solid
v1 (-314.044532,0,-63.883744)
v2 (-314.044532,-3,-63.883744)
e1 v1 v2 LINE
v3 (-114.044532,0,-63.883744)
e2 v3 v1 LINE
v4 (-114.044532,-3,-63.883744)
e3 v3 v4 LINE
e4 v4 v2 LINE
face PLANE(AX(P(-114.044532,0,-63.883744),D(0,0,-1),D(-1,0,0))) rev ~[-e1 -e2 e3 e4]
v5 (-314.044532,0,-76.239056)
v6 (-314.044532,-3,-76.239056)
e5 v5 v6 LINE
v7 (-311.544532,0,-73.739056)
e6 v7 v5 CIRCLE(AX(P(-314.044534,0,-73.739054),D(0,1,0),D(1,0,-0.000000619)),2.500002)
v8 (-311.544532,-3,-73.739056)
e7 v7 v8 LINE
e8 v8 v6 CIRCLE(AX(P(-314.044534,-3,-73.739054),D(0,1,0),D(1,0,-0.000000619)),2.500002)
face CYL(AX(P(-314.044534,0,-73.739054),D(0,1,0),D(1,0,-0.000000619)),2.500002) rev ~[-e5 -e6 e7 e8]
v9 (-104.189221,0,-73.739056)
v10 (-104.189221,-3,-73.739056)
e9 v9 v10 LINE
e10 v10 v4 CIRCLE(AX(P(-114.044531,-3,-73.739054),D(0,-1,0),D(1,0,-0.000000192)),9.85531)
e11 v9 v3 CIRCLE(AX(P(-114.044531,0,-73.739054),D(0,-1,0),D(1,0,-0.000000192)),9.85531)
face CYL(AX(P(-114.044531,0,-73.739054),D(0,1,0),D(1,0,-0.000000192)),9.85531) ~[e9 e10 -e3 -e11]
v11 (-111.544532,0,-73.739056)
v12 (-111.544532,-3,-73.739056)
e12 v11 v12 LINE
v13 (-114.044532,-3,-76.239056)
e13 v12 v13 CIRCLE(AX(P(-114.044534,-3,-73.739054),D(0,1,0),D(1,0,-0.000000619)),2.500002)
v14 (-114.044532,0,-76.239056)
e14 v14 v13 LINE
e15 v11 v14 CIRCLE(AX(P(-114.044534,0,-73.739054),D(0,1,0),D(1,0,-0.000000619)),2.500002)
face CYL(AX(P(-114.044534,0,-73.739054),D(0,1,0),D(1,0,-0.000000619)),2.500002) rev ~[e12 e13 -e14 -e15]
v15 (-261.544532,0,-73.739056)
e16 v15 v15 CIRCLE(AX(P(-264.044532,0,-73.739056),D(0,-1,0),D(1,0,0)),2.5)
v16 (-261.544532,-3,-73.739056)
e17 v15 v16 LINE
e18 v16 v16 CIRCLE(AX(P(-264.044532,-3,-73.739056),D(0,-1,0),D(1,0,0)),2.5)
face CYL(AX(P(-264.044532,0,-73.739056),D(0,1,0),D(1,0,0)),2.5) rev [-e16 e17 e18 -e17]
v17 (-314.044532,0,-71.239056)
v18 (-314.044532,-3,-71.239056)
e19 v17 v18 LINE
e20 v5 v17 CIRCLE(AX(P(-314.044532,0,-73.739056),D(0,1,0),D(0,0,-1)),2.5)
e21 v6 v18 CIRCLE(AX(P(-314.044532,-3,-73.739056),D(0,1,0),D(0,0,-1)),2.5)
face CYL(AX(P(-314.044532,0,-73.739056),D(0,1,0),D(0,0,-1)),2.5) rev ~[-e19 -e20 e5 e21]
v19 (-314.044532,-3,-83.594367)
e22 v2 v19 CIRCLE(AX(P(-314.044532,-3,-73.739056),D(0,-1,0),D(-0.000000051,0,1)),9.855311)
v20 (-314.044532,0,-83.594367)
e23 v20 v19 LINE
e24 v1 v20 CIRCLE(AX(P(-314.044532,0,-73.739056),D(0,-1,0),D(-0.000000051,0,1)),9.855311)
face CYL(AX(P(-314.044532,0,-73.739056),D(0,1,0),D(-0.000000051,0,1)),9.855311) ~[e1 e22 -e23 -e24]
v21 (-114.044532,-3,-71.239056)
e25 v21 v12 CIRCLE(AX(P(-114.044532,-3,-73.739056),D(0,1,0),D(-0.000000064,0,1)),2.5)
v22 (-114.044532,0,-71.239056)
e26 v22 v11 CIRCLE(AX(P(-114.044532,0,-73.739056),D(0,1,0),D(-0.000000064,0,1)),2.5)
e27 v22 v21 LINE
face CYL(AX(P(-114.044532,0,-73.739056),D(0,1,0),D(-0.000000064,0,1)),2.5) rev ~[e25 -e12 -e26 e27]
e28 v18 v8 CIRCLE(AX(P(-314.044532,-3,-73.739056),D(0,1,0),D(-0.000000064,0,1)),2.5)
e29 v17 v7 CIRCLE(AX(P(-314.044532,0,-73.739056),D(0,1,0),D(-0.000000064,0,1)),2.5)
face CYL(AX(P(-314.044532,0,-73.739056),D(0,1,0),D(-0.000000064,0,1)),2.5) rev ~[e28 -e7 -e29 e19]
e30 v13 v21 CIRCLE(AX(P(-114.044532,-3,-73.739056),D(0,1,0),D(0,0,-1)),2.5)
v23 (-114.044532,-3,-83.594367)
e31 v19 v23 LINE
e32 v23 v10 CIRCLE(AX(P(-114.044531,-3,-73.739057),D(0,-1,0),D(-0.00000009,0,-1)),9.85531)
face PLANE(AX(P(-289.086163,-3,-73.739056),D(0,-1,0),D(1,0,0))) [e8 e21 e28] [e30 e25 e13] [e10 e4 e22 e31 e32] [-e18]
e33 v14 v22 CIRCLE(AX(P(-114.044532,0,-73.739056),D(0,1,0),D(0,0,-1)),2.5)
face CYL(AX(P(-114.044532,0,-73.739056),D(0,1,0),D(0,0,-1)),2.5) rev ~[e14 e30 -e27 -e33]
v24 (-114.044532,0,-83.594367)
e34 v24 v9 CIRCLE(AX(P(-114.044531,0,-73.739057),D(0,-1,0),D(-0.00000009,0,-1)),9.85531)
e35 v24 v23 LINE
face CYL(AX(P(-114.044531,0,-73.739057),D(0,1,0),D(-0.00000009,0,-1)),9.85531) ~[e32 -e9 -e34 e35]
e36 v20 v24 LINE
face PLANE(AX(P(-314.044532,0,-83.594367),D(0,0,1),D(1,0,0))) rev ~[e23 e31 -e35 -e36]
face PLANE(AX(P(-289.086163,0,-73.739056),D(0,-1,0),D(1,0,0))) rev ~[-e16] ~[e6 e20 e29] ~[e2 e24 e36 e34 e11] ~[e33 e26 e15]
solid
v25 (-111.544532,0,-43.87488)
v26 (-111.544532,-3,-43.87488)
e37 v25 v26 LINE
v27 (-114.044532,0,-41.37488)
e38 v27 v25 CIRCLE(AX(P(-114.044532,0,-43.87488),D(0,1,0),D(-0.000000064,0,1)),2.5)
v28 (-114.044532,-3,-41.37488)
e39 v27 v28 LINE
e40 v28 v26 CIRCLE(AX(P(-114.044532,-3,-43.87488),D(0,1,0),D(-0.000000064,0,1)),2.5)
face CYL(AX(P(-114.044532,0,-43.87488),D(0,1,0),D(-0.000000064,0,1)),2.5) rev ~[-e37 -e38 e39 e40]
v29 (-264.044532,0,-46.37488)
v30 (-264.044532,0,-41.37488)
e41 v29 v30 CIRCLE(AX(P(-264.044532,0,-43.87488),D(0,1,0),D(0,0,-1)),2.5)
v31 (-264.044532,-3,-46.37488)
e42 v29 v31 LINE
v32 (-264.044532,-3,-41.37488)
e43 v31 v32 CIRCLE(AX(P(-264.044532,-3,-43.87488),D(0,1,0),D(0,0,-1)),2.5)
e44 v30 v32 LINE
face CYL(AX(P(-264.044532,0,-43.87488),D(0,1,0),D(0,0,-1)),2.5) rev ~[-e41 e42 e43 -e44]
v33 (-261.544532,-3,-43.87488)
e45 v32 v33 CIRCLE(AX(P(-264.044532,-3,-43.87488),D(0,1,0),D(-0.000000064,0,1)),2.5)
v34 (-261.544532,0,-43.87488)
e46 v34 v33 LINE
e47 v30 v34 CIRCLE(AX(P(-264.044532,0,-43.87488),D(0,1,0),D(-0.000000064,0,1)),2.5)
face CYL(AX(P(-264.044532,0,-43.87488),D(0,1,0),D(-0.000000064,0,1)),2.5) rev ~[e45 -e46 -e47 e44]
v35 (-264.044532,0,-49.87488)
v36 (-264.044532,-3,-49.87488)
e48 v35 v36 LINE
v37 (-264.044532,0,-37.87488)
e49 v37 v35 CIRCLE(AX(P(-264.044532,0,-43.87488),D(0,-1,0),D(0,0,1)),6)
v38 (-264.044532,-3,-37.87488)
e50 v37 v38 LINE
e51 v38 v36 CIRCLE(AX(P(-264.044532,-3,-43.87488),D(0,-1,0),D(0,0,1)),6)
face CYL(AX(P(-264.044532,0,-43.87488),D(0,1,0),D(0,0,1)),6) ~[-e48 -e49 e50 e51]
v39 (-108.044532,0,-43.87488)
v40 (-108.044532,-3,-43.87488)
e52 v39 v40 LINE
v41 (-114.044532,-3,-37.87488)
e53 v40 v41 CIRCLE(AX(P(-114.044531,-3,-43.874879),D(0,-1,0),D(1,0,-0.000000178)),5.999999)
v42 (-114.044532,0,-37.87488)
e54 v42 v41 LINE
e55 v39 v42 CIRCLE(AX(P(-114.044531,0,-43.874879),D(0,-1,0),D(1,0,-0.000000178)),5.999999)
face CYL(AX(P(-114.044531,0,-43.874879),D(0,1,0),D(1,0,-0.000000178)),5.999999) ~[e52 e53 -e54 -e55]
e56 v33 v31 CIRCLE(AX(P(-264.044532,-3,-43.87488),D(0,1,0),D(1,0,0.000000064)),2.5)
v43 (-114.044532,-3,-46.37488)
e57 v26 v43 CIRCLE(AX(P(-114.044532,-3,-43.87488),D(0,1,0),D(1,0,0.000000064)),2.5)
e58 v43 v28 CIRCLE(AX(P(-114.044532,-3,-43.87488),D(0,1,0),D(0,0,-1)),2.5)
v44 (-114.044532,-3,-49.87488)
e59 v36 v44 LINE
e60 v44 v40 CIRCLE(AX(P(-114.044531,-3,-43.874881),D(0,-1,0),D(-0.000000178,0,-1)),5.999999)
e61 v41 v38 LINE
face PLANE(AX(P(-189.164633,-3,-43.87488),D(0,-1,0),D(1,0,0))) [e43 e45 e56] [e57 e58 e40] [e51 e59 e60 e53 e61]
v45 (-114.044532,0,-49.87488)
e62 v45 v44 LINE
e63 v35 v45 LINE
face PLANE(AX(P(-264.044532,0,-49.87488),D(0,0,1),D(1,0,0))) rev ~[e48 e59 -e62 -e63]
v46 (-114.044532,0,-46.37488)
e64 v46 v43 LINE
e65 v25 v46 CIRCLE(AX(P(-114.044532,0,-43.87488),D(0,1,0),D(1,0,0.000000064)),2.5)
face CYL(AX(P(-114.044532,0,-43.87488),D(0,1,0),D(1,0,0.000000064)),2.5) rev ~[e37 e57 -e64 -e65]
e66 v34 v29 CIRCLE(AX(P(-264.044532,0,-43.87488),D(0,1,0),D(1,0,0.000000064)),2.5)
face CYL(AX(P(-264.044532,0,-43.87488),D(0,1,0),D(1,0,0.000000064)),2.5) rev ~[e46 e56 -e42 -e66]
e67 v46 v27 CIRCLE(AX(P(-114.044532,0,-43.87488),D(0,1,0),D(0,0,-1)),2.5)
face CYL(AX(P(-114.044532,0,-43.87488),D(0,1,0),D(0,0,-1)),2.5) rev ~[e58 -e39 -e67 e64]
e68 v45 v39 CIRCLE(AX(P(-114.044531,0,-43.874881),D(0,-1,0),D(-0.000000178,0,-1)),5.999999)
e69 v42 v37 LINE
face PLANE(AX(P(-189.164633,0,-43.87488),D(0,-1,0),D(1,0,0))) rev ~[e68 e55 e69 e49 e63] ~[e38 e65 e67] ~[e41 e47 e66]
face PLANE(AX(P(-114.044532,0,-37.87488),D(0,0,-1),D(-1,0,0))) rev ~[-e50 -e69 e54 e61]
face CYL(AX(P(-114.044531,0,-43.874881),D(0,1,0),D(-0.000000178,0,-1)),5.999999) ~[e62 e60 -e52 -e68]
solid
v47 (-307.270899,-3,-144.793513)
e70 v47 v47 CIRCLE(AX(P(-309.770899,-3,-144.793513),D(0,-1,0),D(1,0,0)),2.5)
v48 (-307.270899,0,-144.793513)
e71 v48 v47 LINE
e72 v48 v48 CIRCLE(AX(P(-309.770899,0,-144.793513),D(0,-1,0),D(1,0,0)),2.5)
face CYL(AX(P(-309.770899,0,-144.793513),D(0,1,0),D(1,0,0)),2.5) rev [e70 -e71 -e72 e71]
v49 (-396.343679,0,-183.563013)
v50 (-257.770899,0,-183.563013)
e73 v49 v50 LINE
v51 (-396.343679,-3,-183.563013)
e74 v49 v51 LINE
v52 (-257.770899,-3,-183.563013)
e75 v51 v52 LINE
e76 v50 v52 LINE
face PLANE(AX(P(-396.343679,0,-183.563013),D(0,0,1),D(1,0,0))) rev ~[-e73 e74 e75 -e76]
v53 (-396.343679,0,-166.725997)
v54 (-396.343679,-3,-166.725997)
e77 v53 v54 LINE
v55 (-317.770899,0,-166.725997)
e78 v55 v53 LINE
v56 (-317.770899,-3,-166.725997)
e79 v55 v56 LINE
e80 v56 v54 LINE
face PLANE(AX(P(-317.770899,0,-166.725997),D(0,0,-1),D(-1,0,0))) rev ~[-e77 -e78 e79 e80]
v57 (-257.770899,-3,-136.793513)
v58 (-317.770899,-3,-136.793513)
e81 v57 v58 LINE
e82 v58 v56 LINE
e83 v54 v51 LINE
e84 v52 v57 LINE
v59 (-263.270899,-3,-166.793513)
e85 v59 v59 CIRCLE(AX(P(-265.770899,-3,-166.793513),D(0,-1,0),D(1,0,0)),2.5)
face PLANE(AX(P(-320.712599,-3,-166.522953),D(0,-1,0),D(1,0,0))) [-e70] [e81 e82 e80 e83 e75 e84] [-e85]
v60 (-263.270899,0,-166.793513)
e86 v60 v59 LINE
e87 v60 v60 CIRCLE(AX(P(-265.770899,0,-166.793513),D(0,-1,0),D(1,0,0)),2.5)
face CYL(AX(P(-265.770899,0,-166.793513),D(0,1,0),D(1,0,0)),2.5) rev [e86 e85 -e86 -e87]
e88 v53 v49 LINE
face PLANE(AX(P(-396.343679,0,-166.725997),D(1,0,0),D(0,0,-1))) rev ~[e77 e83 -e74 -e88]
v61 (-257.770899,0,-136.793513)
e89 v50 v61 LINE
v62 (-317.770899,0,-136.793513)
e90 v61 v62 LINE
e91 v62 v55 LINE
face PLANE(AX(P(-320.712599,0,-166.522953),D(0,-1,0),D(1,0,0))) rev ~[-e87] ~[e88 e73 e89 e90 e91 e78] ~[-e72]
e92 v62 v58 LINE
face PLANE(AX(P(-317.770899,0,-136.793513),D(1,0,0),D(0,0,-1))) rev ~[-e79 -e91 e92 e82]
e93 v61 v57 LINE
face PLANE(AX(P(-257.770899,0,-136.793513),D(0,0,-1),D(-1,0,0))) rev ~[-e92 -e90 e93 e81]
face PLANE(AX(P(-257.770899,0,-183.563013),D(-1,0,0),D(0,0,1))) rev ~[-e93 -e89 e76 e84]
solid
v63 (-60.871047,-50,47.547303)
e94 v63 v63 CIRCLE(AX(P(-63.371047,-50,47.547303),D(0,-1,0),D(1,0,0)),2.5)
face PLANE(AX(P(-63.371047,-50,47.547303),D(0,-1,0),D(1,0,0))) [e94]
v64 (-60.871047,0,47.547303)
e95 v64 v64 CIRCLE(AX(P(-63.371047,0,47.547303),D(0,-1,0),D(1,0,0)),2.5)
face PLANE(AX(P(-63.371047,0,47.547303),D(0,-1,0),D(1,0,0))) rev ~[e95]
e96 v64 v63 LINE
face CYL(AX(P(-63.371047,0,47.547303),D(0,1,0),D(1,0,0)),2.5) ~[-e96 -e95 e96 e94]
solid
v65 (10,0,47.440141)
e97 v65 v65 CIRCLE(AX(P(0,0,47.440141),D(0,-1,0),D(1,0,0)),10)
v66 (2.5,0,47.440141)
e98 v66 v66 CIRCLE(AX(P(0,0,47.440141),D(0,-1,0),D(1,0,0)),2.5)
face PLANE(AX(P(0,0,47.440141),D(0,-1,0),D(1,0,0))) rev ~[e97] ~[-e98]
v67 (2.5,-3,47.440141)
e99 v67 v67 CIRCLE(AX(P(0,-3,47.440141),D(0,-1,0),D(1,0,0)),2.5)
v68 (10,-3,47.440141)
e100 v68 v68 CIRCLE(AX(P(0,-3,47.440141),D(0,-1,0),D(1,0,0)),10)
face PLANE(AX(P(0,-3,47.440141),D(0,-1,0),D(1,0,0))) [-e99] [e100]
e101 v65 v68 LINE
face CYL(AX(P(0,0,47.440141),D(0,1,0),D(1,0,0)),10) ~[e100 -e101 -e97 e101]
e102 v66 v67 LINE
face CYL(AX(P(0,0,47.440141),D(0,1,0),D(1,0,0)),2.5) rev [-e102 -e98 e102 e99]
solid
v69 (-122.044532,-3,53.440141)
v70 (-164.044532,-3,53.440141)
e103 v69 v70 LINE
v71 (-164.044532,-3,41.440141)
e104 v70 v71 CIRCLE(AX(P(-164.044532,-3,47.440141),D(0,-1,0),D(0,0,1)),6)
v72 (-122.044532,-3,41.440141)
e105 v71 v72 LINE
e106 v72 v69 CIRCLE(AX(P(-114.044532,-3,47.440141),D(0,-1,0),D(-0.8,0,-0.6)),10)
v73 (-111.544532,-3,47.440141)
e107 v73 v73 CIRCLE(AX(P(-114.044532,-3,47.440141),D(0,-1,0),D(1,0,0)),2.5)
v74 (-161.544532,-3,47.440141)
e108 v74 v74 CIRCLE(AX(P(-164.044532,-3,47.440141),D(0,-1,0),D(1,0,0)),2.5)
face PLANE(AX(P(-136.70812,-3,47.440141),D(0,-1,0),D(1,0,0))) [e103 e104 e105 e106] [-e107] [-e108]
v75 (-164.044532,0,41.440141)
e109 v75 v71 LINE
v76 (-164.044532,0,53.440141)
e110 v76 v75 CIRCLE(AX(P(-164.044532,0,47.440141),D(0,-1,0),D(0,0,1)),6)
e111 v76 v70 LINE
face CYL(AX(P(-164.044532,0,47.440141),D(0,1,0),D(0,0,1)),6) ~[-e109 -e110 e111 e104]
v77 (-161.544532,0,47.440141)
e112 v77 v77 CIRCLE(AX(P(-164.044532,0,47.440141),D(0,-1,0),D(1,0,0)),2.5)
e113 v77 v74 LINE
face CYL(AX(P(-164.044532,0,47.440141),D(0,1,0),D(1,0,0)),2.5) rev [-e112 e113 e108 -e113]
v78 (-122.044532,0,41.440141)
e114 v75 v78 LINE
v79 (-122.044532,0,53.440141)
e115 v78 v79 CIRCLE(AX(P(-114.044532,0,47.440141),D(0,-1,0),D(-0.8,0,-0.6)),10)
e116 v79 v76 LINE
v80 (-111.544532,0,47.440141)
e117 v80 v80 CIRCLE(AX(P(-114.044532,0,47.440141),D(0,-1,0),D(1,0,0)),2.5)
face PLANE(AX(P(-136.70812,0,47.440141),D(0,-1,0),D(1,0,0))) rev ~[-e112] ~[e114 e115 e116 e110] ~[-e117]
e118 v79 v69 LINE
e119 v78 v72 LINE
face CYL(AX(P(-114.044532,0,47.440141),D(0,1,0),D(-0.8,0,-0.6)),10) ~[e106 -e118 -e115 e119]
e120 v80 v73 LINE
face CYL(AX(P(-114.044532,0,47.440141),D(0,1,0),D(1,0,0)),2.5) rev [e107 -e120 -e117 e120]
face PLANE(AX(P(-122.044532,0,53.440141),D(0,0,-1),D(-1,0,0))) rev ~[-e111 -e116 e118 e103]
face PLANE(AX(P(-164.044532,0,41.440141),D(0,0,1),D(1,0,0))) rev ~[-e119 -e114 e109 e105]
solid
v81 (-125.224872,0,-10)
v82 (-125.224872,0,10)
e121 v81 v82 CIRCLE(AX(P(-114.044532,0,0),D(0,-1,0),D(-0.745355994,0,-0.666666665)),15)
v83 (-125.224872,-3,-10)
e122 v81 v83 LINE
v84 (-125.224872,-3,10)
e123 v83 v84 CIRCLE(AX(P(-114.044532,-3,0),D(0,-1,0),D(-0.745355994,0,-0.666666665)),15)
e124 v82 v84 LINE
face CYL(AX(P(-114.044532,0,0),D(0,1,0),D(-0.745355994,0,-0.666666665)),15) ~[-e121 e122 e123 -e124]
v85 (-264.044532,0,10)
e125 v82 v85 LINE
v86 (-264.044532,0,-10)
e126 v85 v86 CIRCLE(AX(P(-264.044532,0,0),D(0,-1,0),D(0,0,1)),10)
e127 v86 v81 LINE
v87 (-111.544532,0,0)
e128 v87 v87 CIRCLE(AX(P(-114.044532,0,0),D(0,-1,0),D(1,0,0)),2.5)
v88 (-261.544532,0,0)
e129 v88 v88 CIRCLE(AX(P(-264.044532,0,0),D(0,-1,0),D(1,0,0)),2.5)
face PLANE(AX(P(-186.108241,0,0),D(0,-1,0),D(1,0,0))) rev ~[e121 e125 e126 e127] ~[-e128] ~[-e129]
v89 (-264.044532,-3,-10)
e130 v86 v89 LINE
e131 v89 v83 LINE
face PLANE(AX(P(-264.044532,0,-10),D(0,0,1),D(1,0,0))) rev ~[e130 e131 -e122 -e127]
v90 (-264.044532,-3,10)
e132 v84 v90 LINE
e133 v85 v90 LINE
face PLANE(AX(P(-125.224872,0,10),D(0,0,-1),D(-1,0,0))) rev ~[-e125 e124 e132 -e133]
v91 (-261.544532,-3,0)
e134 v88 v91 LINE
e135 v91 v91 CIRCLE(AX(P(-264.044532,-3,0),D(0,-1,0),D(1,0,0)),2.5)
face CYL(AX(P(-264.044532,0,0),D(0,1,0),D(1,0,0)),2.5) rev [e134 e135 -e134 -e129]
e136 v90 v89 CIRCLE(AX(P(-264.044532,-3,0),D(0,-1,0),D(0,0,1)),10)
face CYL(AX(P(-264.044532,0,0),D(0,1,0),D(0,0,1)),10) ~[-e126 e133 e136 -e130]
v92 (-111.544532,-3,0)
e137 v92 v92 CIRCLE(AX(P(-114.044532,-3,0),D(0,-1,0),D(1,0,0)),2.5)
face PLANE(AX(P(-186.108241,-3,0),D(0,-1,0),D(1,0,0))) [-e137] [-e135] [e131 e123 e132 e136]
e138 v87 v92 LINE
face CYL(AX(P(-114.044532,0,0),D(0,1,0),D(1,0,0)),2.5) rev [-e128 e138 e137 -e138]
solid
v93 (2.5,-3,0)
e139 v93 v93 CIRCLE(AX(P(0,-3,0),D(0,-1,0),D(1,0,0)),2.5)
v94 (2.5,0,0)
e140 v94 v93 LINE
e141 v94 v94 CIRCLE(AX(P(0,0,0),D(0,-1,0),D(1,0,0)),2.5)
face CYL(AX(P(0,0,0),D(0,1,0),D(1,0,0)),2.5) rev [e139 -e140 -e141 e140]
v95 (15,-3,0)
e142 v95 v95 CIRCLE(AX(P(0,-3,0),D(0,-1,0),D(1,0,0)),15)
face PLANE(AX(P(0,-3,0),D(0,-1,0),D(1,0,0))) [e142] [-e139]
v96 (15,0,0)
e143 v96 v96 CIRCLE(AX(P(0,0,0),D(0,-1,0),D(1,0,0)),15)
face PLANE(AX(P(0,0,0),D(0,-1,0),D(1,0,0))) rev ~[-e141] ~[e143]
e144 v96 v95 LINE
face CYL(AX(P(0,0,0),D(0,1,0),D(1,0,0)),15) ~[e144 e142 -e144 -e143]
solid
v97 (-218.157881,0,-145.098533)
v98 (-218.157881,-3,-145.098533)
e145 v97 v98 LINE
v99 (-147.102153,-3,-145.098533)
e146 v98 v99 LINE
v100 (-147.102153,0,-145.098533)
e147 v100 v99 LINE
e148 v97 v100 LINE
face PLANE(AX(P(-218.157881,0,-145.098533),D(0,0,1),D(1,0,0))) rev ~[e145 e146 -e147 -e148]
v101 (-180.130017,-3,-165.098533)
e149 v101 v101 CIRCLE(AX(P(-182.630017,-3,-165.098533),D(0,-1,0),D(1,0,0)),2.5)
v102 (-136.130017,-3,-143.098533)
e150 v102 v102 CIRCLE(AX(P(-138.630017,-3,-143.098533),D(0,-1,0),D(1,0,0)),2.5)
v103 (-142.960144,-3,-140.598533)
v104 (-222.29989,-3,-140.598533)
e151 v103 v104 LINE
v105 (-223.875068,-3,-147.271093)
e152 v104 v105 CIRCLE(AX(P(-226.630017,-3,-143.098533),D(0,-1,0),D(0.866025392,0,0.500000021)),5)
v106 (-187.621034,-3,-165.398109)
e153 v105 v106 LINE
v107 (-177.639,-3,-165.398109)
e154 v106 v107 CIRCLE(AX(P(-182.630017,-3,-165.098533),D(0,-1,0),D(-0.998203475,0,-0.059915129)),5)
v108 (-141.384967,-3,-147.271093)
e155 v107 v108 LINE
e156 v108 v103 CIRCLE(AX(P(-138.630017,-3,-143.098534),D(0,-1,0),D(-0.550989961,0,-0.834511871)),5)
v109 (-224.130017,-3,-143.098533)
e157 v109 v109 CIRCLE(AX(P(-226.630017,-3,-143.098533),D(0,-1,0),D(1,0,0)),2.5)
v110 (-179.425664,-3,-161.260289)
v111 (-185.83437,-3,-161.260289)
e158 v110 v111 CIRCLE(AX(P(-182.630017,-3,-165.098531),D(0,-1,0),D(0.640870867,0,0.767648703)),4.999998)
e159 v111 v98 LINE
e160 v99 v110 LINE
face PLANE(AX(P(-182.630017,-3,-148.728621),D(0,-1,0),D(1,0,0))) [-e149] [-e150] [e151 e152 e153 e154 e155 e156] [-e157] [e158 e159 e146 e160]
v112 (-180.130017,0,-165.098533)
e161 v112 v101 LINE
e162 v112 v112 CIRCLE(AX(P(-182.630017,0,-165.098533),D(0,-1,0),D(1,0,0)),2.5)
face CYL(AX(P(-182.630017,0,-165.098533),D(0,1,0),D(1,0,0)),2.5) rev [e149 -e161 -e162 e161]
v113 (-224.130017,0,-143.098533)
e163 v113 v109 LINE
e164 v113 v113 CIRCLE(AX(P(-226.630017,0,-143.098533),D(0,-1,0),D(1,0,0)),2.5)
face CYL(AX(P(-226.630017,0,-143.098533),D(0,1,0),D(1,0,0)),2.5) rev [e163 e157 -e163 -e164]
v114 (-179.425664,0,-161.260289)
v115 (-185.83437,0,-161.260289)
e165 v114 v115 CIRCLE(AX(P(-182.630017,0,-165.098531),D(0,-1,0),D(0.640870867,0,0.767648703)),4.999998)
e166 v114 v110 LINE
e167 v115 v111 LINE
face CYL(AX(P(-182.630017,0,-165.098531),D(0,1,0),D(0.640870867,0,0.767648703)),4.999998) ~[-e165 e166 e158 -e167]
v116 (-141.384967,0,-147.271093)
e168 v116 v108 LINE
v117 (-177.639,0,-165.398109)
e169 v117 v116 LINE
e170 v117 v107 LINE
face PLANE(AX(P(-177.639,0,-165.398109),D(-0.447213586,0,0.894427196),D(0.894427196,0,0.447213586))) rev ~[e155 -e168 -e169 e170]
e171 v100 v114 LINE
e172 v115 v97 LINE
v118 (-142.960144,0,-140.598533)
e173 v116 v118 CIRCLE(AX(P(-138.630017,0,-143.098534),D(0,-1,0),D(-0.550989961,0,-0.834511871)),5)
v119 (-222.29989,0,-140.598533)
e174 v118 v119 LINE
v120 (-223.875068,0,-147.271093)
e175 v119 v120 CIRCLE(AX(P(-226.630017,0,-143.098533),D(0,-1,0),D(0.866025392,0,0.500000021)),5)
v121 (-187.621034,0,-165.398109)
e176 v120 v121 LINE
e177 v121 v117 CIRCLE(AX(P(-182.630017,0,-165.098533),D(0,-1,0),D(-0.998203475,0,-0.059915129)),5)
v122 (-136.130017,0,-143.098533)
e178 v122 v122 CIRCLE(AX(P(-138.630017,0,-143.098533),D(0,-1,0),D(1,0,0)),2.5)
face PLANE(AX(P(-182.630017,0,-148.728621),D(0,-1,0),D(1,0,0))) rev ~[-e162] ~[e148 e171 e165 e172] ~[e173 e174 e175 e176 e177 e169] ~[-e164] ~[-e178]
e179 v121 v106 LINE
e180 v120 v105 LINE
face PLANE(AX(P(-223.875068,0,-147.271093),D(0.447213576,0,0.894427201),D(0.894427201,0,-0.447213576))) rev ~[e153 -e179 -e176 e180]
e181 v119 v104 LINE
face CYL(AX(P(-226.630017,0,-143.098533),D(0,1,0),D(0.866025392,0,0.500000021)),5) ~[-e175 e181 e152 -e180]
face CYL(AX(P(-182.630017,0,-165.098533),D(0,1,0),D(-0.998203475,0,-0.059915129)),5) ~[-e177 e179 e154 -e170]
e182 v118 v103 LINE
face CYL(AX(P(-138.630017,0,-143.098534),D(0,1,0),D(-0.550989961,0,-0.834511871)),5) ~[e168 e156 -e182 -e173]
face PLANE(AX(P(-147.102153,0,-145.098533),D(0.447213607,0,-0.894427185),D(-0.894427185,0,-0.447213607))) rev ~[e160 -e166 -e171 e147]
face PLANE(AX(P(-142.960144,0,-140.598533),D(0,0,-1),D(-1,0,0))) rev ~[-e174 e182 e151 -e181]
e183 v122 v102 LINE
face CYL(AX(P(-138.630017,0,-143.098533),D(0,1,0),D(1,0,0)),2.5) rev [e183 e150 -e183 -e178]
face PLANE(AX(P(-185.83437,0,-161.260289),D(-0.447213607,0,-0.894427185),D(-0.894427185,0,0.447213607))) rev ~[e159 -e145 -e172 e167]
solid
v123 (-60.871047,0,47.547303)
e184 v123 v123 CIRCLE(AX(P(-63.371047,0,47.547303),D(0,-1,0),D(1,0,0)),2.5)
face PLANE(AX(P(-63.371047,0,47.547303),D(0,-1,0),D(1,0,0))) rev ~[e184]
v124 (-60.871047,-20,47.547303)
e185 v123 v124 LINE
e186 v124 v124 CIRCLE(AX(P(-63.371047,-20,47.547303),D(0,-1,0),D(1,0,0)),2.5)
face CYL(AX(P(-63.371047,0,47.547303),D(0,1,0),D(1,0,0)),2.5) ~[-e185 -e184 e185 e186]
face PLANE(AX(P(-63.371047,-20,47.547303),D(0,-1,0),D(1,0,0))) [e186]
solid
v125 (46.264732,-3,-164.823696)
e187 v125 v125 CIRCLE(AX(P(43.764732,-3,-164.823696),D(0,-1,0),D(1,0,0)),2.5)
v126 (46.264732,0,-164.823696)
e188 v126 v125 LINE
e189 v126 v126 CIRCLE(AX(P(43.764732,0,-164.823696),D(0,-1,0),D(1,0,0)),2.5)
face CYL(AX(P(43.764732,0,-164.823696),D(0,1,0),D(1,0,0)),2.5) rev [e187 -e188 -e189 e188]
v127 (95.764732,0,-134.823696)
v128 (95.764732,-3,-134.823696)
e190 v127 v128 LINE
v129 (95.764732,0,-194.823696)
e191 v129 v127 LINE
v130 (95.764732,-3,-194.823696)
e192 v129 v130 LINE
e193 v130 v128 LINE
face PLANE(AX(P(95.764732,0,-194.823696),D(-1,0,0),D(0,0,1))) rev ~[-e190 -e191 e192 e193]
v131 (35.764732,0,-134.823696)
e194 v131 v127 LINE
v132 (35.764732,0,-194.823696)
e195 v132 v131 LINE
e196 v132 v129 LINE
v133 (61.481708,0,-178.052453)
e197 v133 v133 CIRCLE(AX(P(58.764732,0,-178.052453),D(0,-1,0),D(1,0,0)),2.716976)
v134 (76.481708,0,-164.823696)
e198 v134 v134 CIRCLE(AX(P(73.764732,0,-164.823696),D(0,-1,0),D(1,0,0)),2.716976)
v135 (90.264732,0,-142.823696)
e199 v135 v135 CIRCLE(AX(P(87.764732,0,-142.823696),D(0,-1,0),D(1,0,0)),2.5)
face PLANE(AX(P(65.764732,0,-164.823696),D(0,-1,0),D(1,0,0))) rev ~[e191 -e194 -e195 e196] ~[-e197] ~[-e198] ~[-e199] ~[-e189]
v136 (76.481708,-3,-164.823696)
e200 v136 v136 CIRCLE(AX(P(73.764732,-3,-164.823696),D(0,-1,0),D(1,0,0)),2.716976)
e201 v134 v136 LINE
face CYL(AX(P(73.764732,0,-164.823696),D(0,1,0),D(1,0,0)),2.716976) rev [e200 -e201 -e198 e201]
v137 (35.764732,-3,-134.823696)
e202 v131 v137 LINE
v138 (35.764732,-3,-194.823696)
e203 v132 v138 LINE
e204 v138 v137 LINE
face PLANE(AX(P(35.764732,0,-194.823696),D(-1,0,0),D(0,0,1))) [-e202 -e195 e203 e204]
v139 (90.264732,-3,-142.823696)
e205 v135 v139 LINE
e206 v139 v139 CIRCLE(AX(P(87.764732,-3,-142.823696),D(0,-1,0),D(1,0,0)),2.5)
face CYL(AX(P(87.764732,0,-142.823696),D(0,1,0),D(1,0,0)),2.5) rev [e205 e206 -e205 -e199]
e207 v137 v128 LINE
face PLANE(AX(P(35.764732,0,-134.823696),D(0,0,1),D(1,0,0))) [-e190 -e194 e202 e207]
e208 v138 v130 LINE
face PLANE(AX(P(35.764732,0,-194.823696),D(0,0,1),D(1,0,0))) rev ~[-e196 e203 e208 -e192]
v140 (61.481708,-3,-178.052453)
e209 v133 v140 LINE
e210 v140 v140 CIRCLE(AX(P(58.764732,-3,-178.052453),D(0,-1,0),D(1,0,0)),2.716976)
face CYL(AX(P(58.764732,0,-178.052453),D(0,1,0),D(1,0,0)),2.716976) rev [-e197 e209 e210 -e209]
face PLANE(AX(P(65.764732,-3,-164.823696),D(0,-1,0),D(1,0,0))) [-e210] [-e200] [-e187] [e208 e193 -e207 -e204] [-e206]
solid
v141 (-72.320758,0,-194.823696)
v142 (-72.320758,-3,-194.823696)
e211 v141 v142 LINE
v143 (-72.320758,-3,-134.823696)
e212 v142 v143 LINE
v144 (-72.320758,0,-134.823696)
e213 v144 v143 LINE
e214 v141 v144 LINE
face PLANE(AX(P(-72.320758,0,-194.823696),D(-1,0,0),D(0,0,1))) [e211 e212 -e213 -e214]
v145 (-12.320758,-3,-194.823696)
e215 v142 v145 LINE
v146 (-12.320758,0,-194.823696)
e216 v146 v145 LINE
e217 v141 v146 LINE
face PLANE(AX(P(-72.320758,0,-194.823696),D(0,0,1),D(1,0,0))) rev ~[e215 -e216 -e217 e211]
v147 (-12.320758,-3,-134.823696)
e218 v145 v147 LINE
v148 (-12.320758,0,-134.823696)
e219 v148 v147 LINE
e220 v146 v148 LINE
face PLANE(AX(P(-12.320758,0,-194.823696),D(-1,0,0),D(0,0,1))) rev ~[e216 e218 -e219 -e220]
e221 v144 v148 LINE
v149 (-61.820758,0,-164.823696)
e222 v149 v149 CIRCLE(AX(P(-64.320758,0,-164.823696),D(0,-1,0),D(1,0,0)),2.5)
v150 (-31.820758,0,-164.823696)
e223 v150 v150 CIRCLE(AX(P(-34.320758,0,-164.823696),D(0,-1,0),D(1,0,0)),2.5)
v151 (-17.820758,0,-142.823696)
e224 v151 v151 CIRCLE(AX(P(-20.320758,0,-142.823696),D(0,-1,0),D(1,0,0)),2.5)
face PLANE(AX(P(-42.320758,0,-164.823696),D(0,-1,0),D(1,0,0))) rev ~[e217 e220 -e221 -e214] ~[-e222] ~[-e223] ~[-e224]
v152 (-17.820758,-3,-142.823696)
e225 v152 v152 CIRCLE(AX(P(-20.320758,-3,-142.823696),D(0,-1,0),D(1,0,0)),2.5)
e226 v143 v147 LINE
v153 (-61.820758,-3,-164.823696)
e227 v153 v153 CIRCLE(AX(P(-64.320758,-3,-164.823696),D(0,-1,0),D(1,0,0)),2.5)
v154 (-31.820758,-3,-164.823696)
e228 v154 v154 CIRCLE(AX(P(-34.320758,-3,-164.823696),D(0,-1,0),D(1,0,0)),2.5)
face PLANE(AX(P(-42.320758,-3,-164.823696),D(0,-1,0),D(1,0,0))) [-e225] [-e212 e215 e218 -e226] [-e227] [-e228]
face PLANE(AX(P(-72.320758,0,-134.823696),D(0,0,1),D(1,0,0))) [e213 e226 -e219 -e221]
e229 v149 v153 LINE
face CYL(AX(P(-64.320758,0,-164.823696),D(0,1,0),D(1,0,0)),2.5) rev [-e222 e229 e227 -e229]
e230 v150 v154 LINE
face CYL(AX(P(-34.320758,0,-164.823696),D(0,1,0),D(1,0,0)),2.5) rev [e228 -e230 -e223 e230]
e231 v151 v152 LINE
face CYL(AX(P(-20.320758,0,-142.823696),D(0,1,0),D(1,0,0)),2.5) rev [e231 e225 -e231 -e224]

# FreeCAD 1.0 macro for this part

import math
import FreeCAD as App
import Part
import Sketcher
from FreeCAD import Vector

doc = App.newDocument("Part")
body = doc.addObject("PartDesign::Body", "Body")
body.AllowCompound = True

sketch1 = doc.addObject("Sketcher::SketchObject", "Sketch")
body.addObject(sketch1)
sketch1.AttachmentSupport = (doc.XZ_Plane, [""])
sketch1.MapMode = "FlatFace"
sketch1.addGeometry([
    Part.Circle(Vector(0, 0, 0), Vector(0, 0, 1), 15),
    Part.Circle(Vector(0, 0, 0), Vector(0, 0, 1), 2.5),
    Part.Circle(Vector(0, 47.4, 0), Vector(0, 0, 1), 10),
    Part.Circle(Vector(0, 47.4, 0), Vector(0, 0, 1), 2.5),
    Part.LineSegment(Vector(-164, 41.4, 0), Vector(-122, 41.4, 0)),
    Part.ArcOfCircle(Part.Circle(Vector(-114, 47.4, 0), Vector(0, 0, 1), 10), math.radians(-143), math.radians(143)),
    Part.LineSegment(Vector(-122, 53.4, 0), Vector(-164, 53.4, 0)),
    Part.ArcOfCircle(Part.Circle(Vector(-164, 47.4, 0), Vector(0, 0, 1), 6), math.radians(90), math.radians(270)),
    Part.Circle(Vector(-164, 47.4, 0), Vector(0, 0, 1), 2.5),
    Part.Circle(Vector(-114, 47.4, 0), Vector(0, 0, 1), 2.5),
    Part.LineSegment(Vector(-264, -10, 0), Vector(-125.2, -10, 0)),
    Part.ArcOfCircle(Part.Circle(Vector(-114, 0, 0), Vector(0, 0, 1), 15), math.radians(-138), math.radians(138)),
    Part.LineSegment(Vector(-125.2, 10, 0), Vector(-264, 10, 0)),
    Part.ArcOfCircle(Part.Circle(Vector(-264, 0, 0), Vector(0, 0, 1), 10), math.radians(90), math.radians(270)),
    Part.Circle(Vector(-264, 0, 0), Vector(0, 0, 1), 2.5),
    Part.Circle(Vector(-114, 0, 0), Vector(0, 0, 1), 2.5),
    Part.LineSegment(Vector(-114, -37.9, 0), Vector(-264, -37.9, 0)),
    Part.ArcOfCircle(Part.Circle(Vector(-264, -43.9, 0), Vector(0, 0, 1), 6), math.radians(90), math.radians(270)),
    Part.LineSegment(Vector(-264, -49.9, 0), Vector(-114, -49.9, 0)),
    Part.ArcOfCircle(Part.Circle(Vector(-114, -43.9, 0), Vector(0, 0, 1), 6), math.radians(-90), math.radians(0)),
    Part.ArcOfCircle(Part.Circle(Vector(-114, -43.9, 0), Vector(0, 0, 1), 6), math.radians(0), math.radians(90)),
    Part.ArcOfCircle(Part.Circle(Vector(-264, -43.9, 0), Vector(0, 0, 1), 2.5), math.radians(0), math.radians(90)),
    Part.ArcOfCircle(Part.Circle(Vector(-264, -43.9, 0), Vector(0, 0, 1), 2.5), math.radians(-90), math.radians(0)),
    Part.ArcOfCircle(Part.Circle(Vector(-264, -43.9, 0), Vector(0, 0, 1), 2.5), math.radians(90), math.radians(270)),
    Part.ArcOfCircle(Part.Circle(Vector(-114, -43.9, 0), Vector(0, 0, 1), 2.5), math.radians(90), math.radians(270)),
    Part.ArcOfCircle(Part.Circle(Vector(-114, -43.9, 0), Vector(0, 0, 1), 2.5), math.radians(0), math.radians(90)),
    Part.ArcOfCircle(Part.Circle(Vector(-114, -43.9, 0), Vector(0, 0, 1), 2.5), math.radians(-90), math.radians(0)),
    Part.ArcOfCircle(Part.Circle(Vector(-314, -73.7, 0), Vector(0, 0, 1), 9.9), math.radians(90), math.radians(270)),
    Part.LineSegment(Vector(-314, -83.6, 0), Vector(-114, -83.6, 0)),
    Part.ArcOfCircle(Part.Circle(Vector(-114, -73.7, 0), Vector(0, 0, 1), 9.9), math.radians(-90), math.radians(0)),
    Part.ArcOfCircle(Part.Circle(Vector(-114, -73.7, 0), Vector(0, 0, 1), 9.9), math.radians(0), math.radians(90)),
    Part.LineSegment(Vector(-114, -63.9, 0), Vector(-314, -63.9, 0)),
    Part.ArcOfCircle(Part.Circle(Vector(-114, -73.7, 0), Vector(0, 0, 1), 2.5), math.radians(-90), math.radians(0)),
    Part.ArcOfCircle(Part.Circle(Vector(-114, -73.7, 0), Vector(0, 0, 1), 2.5), math.radians(90), math.radians(270)),
    Part.ArcOfCircle(Part.Circle(Vector(-114, -73.7, 0), Vector(0, 0, 1), 2.5), math.radians(0), math.radians(90)),
    Part.ArcOfCircle(Part.Circle(Vector(-314, -73.7, 0), Vector(0, 0, 1), 2.5), math.radians(0), math.radians(90)),
    Part.ArcOfCircle(Part.Circle(Vector(-314, -73.7, 0), Vector(0, 0, 1), 2.5), math.radians(-90), math.radians(0)),
    Part.ArcOfCircle(Part.Circle(Vector(-314, -73.7, 0), Vector(0, 0, 1), 2.5), math.radians(90), math.radians(270)),
    Part.Circle(Vector(-264, -73.7, 0), Vector(0, 0, 1), 2.5),
    Part.LineSegment(Vector(-396.3, -183.6, 0), Vector(-257.8, -183.6, 0)),
    Part.LineSegment(Vector(-257.8, -183.6, 0), Vector(-257.8, -136.8, 0)),
    Part.LineSegment(Vector(-257.8, -136.8, 0), Vector(-317.8, -136.8, 0)),
    Part.LineSegment(Vector(-317.8, -136.8, 0), Vector(-317.8, -166.7, 0)),
    Part.LineSegment(Vector(-317.8, -166.7, 0), Vector(-396.3, -166.7, 0)),
    Part.LineSegment(Vector(-396.3, -166.7, 0), Vector(-396.3, -183.6, 0)),
    Part.Circle(Vector(-265.8, -166.8, 0), Vector(0, 0, 1), 2.5),
    Part.Circle(Vector(-309.8, -144.8, 0), Vector(0, 0, 1), 2.5),
    Part.LineSegment(Vector(-72.3, -134.8, 0), Vector(-72.3, -194.8, 0)),
    Part.LineSegment(Vector(-72.3, -194.8, 0), Vector(-12.3, -194.8, 0)),
    Part.LineSegment(Vector(-12.3, -194.8, 0), Vector(-12.3, -134.8, 0)),
    Part.LineSegment(Vector(-12.3, -134.8, 0), Vector(-72.3, -134.8, 0)),
    Part.Circle(Vector(-64.3, -164.8, 0), Vector(0, 0, 1), 2.5),
    Part.Circle(Vector(-34.3, -164.8, 0), Vector(0, 0, 1), 2.5),
    Part.Circle(Vector(-20.3, -142.8, 0), Vector(0, 0, 1), 2.5),
    Part.ArcOfCircle(Part.Circle(Vector(-226.6, -143.1, 0), Vector(0, 0, 1), 5), math.radians(30), math.radians(303)),
    Part.LineSegment(Vector(-223.9, -147.3, 0), Vector(-187.6, -165.4, 0)),
    Part.ArcOfCircle(Part.Circle(Vector(-182.6, -165.1, 0), Vector(0, 0, 1), 5), math.radians(-177), math.radians(-3)),
    Part.LineSegment(Vector(-177.6, -165.4, 0), Vector(-141.4, -147.3, 0)),
    Part.ArcOfCircle(Part.Circle(Vector(-138.6, -143.1, 0), Vector(0, 0, 1), 5), math.radians(-123), math.radians(150)),
    Part.LineSegment(Vector(-143, -140.6, 0), Vector(-222.3, -140.6, 0)),
    Part.Circle(Vector(-182.6, -165.1, 0), Vector(0, 0, 1), 2.5),
    Part.Circle(Vector(-226.6, -143.1, 0), Vector(0, 0, 1), 2.5),
    Part.ArcOfCircle(Part.Circle(Vector(-182.6, -165.1, 0), Vector(0, 0, 1), 5), math.radians(50), math.radians(130)),
    Part.LineSegment(Vector(-185.8, -161.3, 0), Vector(-218.2, -145.1, 0)),
    Part.LineSegment(Vector(-218.2, -145.1, 0), Vector(-147.1, -145.1, 0)),
    Part.LineSegment(Vector(-147.1, -145.1, 0), Vector(-179.4, -161.3, 0)),
    Part.Circle(Vector(-138.6, -143.1, 0), Vector(0, 0, 1), 2.5),
    Part.LineSegment(Vector(35.8, -134.8, 0), Vector(35.8, -194.8, 0)),
    Part.LineSegment(Vector(35.8, -194.8, 0), Vector(95.8, -194.8, 0)),
    Part.LineSegment(Vector(95.8, -194.8, 0), Vector(95.8, -134.8, 0)),
    Part.LineSegment(Vector(95.8, -134.8, 0), Vector(35.8, -134.8, 0)),
    Part.Circle(Vector(58.8, -178.1, 0), Vector(0, 0, 1), 2.7),
    Part.Circle(Vector(43.8, -164.8, 0), Vector(0, 0, 1), 2.5),
    Part.Circle(Vector(73.8, -164.8, 0), Vector(0, 0, 1), 2.7),
    Part.Circle(Vector(87.8, -142.8, 0), Vector(0, 0, 1), 2.5),
], False)
sketch1.addConstraint([
    Sketcher.Constraint("Coincident", 4, 2, 5, 1),
    Sketcher.Constraint("Coincident", 5, 2, 6, 1),
    Sketcher.Constraint("Tangent", 6, 2, 7, 1),
    Sketcher.Constraint("Tangent", 7, 2, 4, 1),
    Sketcher.Constraint("Coincident", 10, 2, 11, 1),
    Sketcher.Constraint("Coincident", 11, 2, 12, 1),
    Sketcher.Constraint("Tangent", 12, 2, 13, 1),
    Sketcher.Constraint("Tangent", 13, 2, 10, 1),
    Sketcher.Constraint("Tangent", 16, 2, 17, 1),
    Sketcher.Constraint("Tangent", 17, 2, 18, 1),
    Sketcher.Constraint("Tangent", 18, 2, 19, 1),
    Sketcher.Constraint("Tangent", 19, 2, 20, 1),
    Sketcher.Constraint("Tangent", 20, 2, 16, 1),
    Sketcher.Constraint("Tangent", 21, 1, 22, 2),
    Sketcher.Constraint("Tangent", 22, 1, 23, 2),
    Sketcher.Constraint("Tangent", 23, 1, 21, 2),
    Sketcher.Constraint("Tangent", 24, 1, 25, 2),
    Sketcher.Constraint("Tangent", 25, 1, 26, 2),
    Sketcher.Constraint("Tangent", 26, 1, 24, 2),
    Sketcher.Constraint("Tangent", 27, 2, 28, 1),
    Sketcher.Constraint("Tangent", 28, 2, 29, 1),
    Sketcher.Constraint("Tangent", 29, 2, 30, 1),
    Sketcher.Constraint("Tangent", 30, 2, 31, 1),
    Sketcher.Constraint("Tangent", 31, 2, 27, 1),
    Sketcher.Constraint("Tangent", 32, 1, 33, 2),
    Sketcher.Constraint("Tangent", 33, 1, 34, 2),
    Sketcher.Constraint("Tangent", 34, 1, 32, 2),
    Sketcher.Constraint("Tangent", 35, 1, 36, 2),
    Sketcher.Constraint("Tangent", 36, 1, 37, 2),
    Sketcher.Constraint("Tangent", 37, 1, 35, 2),
    Sketcher.Constraint("Coincident", 39, 2, 40, 1),
    Sketcher.Constraint("Coincident", 40, 2, 41, 1),
    Sketcher.Constraint("Coincident", 41, 2, 42, 1),
    Sketcher.Constraint("Coincident", 42, 2, 43, 1),
    Sketcher.Constraint("Coincident", 43, 2, 44, 1),
    Sketcher.Constraint("Coincident", 44, 2, 39, 1),
    Sketcher.Constraint("Coincident", 47, 2, 48, 1),
    Sketcher.Constraint("Coincident", 48, 2, 49, 1),
    Sketcher.Constraint("Coincident", 49, 2, 50, 1),
    Sketcher.Constraint("Coincident", 50, 2, 47, 1),
    Sketcher.Constraint("Coincident", 54, 2, 55, 1),
    Sketcher.Constraint("Coincident", 55, 2, 56, 1),
    Sketcher.Constraint("Coincident", 56, 2, 57, 1),
    Sketcher.Constraint("Coincident", 57, 2, 58, 1),
    Sketcher.Constraint("Coincident", 58, 2, 59, 1),
    Sketcher.Constraint("Coincident", 59, 2, 54, 1),
    Sketcher.Constraint("Coincident", 62, 2, 63, 1),
    Sketcher.Constraint("Coincident", 63, 2, 64, 1),
    Sketcher.Constraint("Coincident", 64, 2, 65, 1),
    Sketcher.Constraint("Coincident", 65, 2, 62, 1),
    Sketcher.Constraint("Coincident", 67, 2, 68, 1),
    Sketcher.Constraint("Coincident", 68, 2, 69, 1),
    Sketcher.Constraint("Coincident", 69, 2, 70, 1),
    Sketcher.Constraint("Coincident", 70, 2, 67, 1),
    Sketcher.Constraint("Horizontal", 4),
    Sketcher.Constraint("Horizontal", 6),
    Sketcher.Constraint("Horizontal", 10),
    Sketcher.Constraint("Horizontal", 12),
    Sketcher.Constraint("Horizontal", 16),
    Sketcher.Constraint("Horizontal", 18),
    Sketcher.Constraint("Horizontal", 28),
    Sketcher.Constraint("Horizontal", 31),
    Sketcher.Constraint("Horizontal", 39),
    Sketcher.Constraint("Vertical", 40),
    Sketcher.Constraint("Horizontal", 41),
    Sketcher.Constraint("Vertical", 42),
    Sketcher.Constraint("Horizontal", 43),
    Sketcher.Constraint("Vertical", 44),
    Sketcher.Constraint("Vertical", 47),
    Sketcher.Constraint("Horizontal", 48),
    Sketcher.Constraint("Vertical", 49),
    Sketcher.Constraint("Horizontal", 50),
    Sketcher.Constraint("Horizontal", 59),
    Sketcher.Constraint("Horizontal", 64),
    Sketcher.Constraint("Vertical", 67),
    Sketcher.Constraint("Horizontal", 68),
    Sketcher.Constraint("Vertical", 69),
    Sketcher.Constraint("Horizontal", 70),
    Sketcher.Constraint("Coincident", 0, 3, -1, 1),
    Sketcher.Constraint("Coincident", 1, 3, -1, 1),
    Sketcher.Constraint("Coincident", 3, 3, 2, 3),
    Sketcher.Constraint("Coincident", 8, 3, 7, 3),
    Sketcher.Constraint("Coincident", 9, 3, 5, 3),
    Sketcher.Constraint("Coincident", 14, 3, 13, 3),
    Sketcher.Constraint("Coincident", 15, 3, 11, 3),
    Sketcher.Constraint("Coincident", 21, 3, 17, 3),
    Sketcher.Constraint("Coincident", 24, 3, 19, 3),
    Sketcher.Constraint("Coincident", 32, 3, 29, 3),
    Sketcher.Constraint("Coincident", 35, 3, 27, 3),
    Sketcher.Constraint("Coincident", 60, 3, 56, 3),
    Sketcher.Constraint("Coincident", 61, 3, 54, 3),
    Sketcher.Constraint("Coincident", 62, 3, 56, 3),
    Sketcher.Constraint("Coincident", 66, 3, 58, 3),
    Sketcher.Constraint("Equal", 1, 3),
    Sketcher.Constraint("Equal", 2, 5),
    Sketcher.Constraint("Equal", 3, 8),
    Sketcher.Constraint("Equal", 8, 9),
    Sketcher.Constraint("Equal", 0, 11),
    Sketcher.Constraint("Equal", 5, 13),
    Sketcher.Constraint("Equal", 9, 14),
    Sketcher.Constraint("Equal", 14, 15),
    Sketcher.Constraint("Equal", 7, 17),
    Sketcher.Constraint("Equal", 17, 19),
    Sketcher.Constraint("Equal", 15, 21),
    Sketcher.Constraint("Equal", 23, 24),
    Sketcher.Constraint("Equal", 27, 29),
    Sketcher.Constraint("Equal", 26, 32),
    Sketcher.Constraint("Equal", 34, 35),
    Sketcher.Constraint("Equal", 37, 38),
    Sketcher.Constraint("Equal", 38, 45),
    Sketcher.Constraint("Equal", 45, 46),
    Sketcher.Constraint("Equal", 46, 51),
    Sketcher.Constraint("Equal", 51, 52),
    Sketcher.Constraint("Equal", 52, 53),
    Sketcher.Constraint("Equal", 54, 56),
    Sketcher.Constraint("Equal", 56, 58),
    Sketcher.Constraint("Equal", 53, 60),
    Sketcher.Constraint("Equal", 60, 61),
    Sketcher.Constraint("Equal", 56, 62),
    Sketcher.Constraint("Equal", 61, 66),
    Sketcher.Constraint("Equal", 66, 72),
    Sketcher.Constraint("Equal", 71, 73),
    Sketcher.Constraint("Equal", 72, 74),
    Sketcher.Constraint("Symmetric", 10, 2, 11, 2, -1),
    Sketcher.Constraint("PointOnObject", 2, 3, -2),
    Sketcher.Constraint("Parallel", 55, 63),
    Sketcher.Constraint("Parallel", 57, 65),
    Sketcher.Constraint("Horizontal", 3, 3, 5, 3),
    Sketcher.Constraint("Horizontal", 5, 3, 7, 3),
    Sketcher.Constraint("Horizontal", 37, 3, 38, 3),
    Sketcher.Constraint("Horizontal", 51, 3, 52, 3),
    Sketcher.Constraint("Horizontal", 54, 3, 58, 3),
    Sketcher.Constraint("Horizontal", 52, 3, 72, 3),
    Sketcher.Constraint("Horizontal", 72, 3, 73, 3),
    Sketcher.Constraint("Horizontal", 53, 3, 74, 3),
    Sketcher.Constraint("Horizontal", 26, 3, 19, 2),
    Sketcher.Constraint("Horizontal", 19, 2, 21, 1),
    Sketcher.Constraint("Horizontal", 21, 1, 25, 1),
    Sketcher.Constraint("Horizontal", 38, 3, 29, 2),
    Sketcher.Constraint("Horizontal", 29, 2, 34, 1),
    Sketcher.Constraint("Horizontal", 34, 1, 35, 1),
    Sketcher.Constraint("Horizontal", 55, 2, 56, 2),
    Sketcher.Constraint("Horizontal", 54, 2, 57, 2),
    Sketcher.Constraint("Horizontal", 62, 2, 65, 2),
    Sketcher.Constraint("Horizontal", 48, 2, 67, 2),
    Sketcher.Constraint("Horizontal", 50, 2, 69, 2),
    Sketcher.Constraint("Vertical", 9, 3, 11, 3),
    Sketcher.Constraint("Vertical", 14, 3, 17, 3),
    Sketcher.Constraint("Vertical", 15, 3, 19, 3),
    Sketcher.Constraint("Vertical", 26, 3, 29, 3),
    Sketcher.Constraint("Vertical", 23, 3, 38, 3),
    Sketcher.Constraint("Vertical", 17, 2, 22, 1),
    Sketcher.Constraint("Vertical", 22, 1, 23, 1),
    Sketcher.Constraint("Vertical", 20, 2, 24, 1),
    Sketcher.Constraint("Vertical", 24, 1, 26, 1),
    Sketcher.Constraint("Vertical", 30, 2, 32, 1),
    Sketcher.Constraint("Vertical", 32, 1, 33, 1),
    Sketcher.Constraint("Vertical", 31, 2, 36, 1),
    Sketcher.Constraint("Vertical", 36, 1, 37, 1),
    Sketcher.Constraint("Equal", 41, 48),
    Sketcher.Constraint("Equal", 50, 68),
    Sketcher.Constraint("Equal", 70, 47),
    Sketcher.Constraint("Equal", 55, 57),
    Sketcher.Constraint("Diameter", 0, 30.0),
    Sketcher.Constraint("Diameter", 1, 5.0),
    Sketcher.Constraint("Diameter", 2, 20.0),
    Sketcher.Constraint("Radius", 7, 6.0),
    Sketcher.Constraint("Radius", 54, 5.0),
    Sketcher.Constraint("DistanceX", 4, 1, 4, 2, 42.0),
    Sketcher.Constraint("DistanceX", 16, 2, 16, 1, 150.0),
    Sketcher.Constraint("DistanceX", 28, 1, 28, 2, 200.0),
    Sketcher.Constraint("DistanceX", 41, 2, 41, 1, 60.0),
    Sketcher.Constraint("Diameter", 71, 5.433952),
    Sketcher.Constraint("Radius", 27, 9.855311),
    Sketcher.Constraint("DistanceY", 40, 1, 40, 2, 46.7695),
    Sketcher.Constraint("DistanceX", 56, 2, -1, 1, 177.639),
    Sketcher.Constraint("DistanceX", 39, 1, 39, 2, 138.57278),
    Sketcher.Constraint("DistanceX", 64, 1, 64, 2, 71.055728),
    Sketcher.Constraint("DistanceX", 45, 3, -1, 1, 265.770899),
    Sketcher.Constraint("DistanceX", 46, 3, -1, 1, 309.770899),
    Sketcher.Constraint("DistanceX", 39, 2, -1, 1, 257.770899),
    Sketcher.Constraint("Distance", 55, 40.533242),
    Sketcher.Constraint("DistanceX", 59, 2, 59, 1, 79.339746),
    Sketcher.Constraint("DistanceY", 42, 2, 42, 1, 29.932484),
    Sketcher.Constraint("DistanceY", -1, 1, 2, 3, 47.440141),
    Sketcher.Constraint("DistanceX", 7, 3, -1, 1, 164.044532),
    Sketcher.Constraint("DistanceY", 17, 3, -1, 1, 43.87488),
    Sketcher.Constraint("DistanceX", 53, 3, -1, 1, 20.320758),
    Sketcher.Constraint("DistanceY", 62, 3, -1, 1, 165.098531),
    Sketcher.Constraint("DistanceX", -1, 1, 73, 3, 73.764732),
    Sketcher.Constraint("DistanceX", -1, 1, 74, 3, 87.764732),
    Sketcher.Constraint("DistanceY", 55, 2, -1, 1, 165.398109),
    Sketcher.Constraint("DistanceX", 62, 2, -1, 1, 185.83437),
    Sketcher.Constraint("DistanceX", -1, 1, 68, 2, 95.764732),
    Sketcher.Constraint("Distance", 63, 36.138784),
    Sketcher.Constraint("DistanceY", 27, 3, -1, 1, 73.739056),
    Sketcher.Constraint("DistanceY", 45, 3, -1, 1, 166.793513),
    Sketcher.Constraint("DistanceY", 46, 3, -1, 1, 144.793513),
    Sketcher.Constraint("DistanceX", 51, 3, -1, 1, 64.320758),
    Sketcher.Constraint("DistanceY", 51, 3, -1, 1, 164.823696),
    Sketcher.Constraint("DistanceX", 52, 3, -1, 1, 34.320758),
    Sketcher.Constraint("DistanceY", 53, 3, -1, 1, 142.823696),
    Sketcher.Constraint("DistanceX", 54, 3, -1, 1, 226.630017),
    Sketcher.Constraint("DistanceX", -1, 1, 71, 3, 58.764732),
    Sketcher.Constraint("DistanceY", 71, 3, -1, 1, 178.052453),
    Sketcher.Constraint("DistanceX", -1, 1, 72, 3, 43.764732),
    Sketcher.Constraint("DistanceY", 39, 2, -1, 1, 183.563013),
    Sketcher.Constraint("DistanceX", 47, 2, -1, 1, 72.320758),
    Sketcher.Constraint("DistanceY", 47, 2, -1, 1, 194.823696),
])
pad1 = doc.addObject("PartDesign::Pad", "Pad")
body.addObject(pad1)
pad1.Profile = sketch1
pad1.Length = 3
body2 = doc.addObject("PartDesign::Body", "Body001")

sketch2 = doc.addObject("Sketcher::SketchObject", "Sketch001")
body2.addObject(sketch2)
sketch2.AttachmentSupport = (doc.getObject("XZ_Plane001"), [""])
sketch2.MapMode = "FlatFace"
sketch2.addGeometry(Part.Circle(Vector(-63.4, 47.5, 0), Vector(0, 0, 1), 2.5), False)
sketch2.addConstraint([
    Sketcher.Constraint("Diameter", 0, 5.0),
    Sketcher.Constraint("DistanceX", 0, 3, -1, 1, 63.371047),
    Sketcher.Constraint("DistanceY", -1, 1, 0, 3, 47.547303),
])
pad2 = doc.addObject("PartDesign::Pad", "Pad001")
body2.addObject(pad2)
pad2.Profile = sketch2
pad2.Length = 50
body3 = doc.addObject("PartDesign::Body", "Body002")

sketch3 = doc.addObject("Sketcher::SketchObject", "Sketch002")
body3.addObject(sketch3)
sketch3.AttachmentSupport = (doc.getObject("XZ_Plane002"), [""])
sketch3.MapMode = "FlatFace"
sketch3.addGeometry(Part.Circle(Vector(-63.4, 47.5, 0), Vector(0, 0, 1), 2.5), False)
sketch3.addConstraint([
    Sketcher.Constraint("Diameter", 0, 5.0),
    Sketcher.Constraint("DistanceX", 0, 3, -1, 1, 63.371047),
    Sketcher.Constraint("DistanceY", -1, 1, 0, 3, 47.547303),
])
pad3 = doc.addObject("PartDesign::Pad", "Pad002")
body3.addObject(pad3)
pad3.Profile = sketch3
pad3.Length = 20

doc.recompute()
